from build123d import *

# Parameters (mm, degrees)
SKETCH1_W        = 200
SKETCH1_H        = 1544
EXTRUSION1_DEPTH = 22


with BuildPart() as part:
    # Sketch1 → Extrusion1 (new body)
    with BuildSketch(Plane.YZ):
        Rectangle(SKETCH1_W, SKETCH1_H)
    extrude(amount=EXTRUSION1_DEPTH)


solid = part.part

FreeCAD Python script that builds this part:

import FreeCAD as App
import Part
import Sketcher

V = App.Vector

doc = App.newDocument("Part")
params = doc.addObject("Spreadsheet::Sheet", "Params")
for row, (alias, value) in enumerate([
    ("sketch1_width", "200 mm"),
    ("sketch1_height", "1544 mm"),
    ("pad1_length", "22 mm"),
], start=1):
    params.set(f"A{row}", alias)
    params.set(f"B{row}", "=" + value)
    params.setAlias(f"B{row}", alias)

body = doc.addObject("PartDesign::Body", "Body")

# Sketch on YZ plane
sketch1 = doc.addObject("Sketcher::SketchObject", "Sketch")
body.addObject(sketch1)
sketch1.AttachmentSupport = (doc.YZ_Plane, [""])
sketch1.MapMode = "FlatFace"
sketch1.addGeometry([
    Part.LineSegment(V(-100, 772, 0), V(-100, -772, 0)),
    Part.LineSegment(V(-100, -772, 0), V(100, -772, 0)),
    Part.LineSegment(V(100, -772, 0), V(100, 772, 0)),
    Part.LineSegment(V(100, 772, 0), V(-100, 772, 0)),
], False)
sketch1.addConstraint([
    Sketcher.Constraint("Coincident", 0, 2, 1, 1),
    Sketcher.Constraint("Coincident", 1, 2, 2, 1),
    Sketcher.Constraint("Coincident", 2, 2, 3, 1),
    Sketcher.Constraint("Coincident", 3, 2, 0, 1),
    Sketcher.Constraint("Vertical", 0),
    Sketcher.Constraint("Horizontal", 1),
    Sketcher.Constraint("Vertical", 2),
    Sketcher.Constraint("Horizontal", 3),
    Sketcher.Constraint("Symmetric", 0, 2, 2, 2, -1, 1),
    Sketcher.Constraint("DistanceX", 1, 1, 1, 2, 200.0),
    Sketcher.Constraint("DistanceY", 0, 2, 0, 1, 1544.0),
])
sketch1.setExpression("Constraints[9]", "Params.sketch1_width")
sketch1.setExpression("Constraints[10]", "Params.sketch1_height")
pad1 = doc.addObject("PartDesign::Pad", "Pad")
body.addObject(pad1)
pad1.Profile = sketch1
pad1.setExpression("Length", "Params.pad1_length")

doc.recompute()
